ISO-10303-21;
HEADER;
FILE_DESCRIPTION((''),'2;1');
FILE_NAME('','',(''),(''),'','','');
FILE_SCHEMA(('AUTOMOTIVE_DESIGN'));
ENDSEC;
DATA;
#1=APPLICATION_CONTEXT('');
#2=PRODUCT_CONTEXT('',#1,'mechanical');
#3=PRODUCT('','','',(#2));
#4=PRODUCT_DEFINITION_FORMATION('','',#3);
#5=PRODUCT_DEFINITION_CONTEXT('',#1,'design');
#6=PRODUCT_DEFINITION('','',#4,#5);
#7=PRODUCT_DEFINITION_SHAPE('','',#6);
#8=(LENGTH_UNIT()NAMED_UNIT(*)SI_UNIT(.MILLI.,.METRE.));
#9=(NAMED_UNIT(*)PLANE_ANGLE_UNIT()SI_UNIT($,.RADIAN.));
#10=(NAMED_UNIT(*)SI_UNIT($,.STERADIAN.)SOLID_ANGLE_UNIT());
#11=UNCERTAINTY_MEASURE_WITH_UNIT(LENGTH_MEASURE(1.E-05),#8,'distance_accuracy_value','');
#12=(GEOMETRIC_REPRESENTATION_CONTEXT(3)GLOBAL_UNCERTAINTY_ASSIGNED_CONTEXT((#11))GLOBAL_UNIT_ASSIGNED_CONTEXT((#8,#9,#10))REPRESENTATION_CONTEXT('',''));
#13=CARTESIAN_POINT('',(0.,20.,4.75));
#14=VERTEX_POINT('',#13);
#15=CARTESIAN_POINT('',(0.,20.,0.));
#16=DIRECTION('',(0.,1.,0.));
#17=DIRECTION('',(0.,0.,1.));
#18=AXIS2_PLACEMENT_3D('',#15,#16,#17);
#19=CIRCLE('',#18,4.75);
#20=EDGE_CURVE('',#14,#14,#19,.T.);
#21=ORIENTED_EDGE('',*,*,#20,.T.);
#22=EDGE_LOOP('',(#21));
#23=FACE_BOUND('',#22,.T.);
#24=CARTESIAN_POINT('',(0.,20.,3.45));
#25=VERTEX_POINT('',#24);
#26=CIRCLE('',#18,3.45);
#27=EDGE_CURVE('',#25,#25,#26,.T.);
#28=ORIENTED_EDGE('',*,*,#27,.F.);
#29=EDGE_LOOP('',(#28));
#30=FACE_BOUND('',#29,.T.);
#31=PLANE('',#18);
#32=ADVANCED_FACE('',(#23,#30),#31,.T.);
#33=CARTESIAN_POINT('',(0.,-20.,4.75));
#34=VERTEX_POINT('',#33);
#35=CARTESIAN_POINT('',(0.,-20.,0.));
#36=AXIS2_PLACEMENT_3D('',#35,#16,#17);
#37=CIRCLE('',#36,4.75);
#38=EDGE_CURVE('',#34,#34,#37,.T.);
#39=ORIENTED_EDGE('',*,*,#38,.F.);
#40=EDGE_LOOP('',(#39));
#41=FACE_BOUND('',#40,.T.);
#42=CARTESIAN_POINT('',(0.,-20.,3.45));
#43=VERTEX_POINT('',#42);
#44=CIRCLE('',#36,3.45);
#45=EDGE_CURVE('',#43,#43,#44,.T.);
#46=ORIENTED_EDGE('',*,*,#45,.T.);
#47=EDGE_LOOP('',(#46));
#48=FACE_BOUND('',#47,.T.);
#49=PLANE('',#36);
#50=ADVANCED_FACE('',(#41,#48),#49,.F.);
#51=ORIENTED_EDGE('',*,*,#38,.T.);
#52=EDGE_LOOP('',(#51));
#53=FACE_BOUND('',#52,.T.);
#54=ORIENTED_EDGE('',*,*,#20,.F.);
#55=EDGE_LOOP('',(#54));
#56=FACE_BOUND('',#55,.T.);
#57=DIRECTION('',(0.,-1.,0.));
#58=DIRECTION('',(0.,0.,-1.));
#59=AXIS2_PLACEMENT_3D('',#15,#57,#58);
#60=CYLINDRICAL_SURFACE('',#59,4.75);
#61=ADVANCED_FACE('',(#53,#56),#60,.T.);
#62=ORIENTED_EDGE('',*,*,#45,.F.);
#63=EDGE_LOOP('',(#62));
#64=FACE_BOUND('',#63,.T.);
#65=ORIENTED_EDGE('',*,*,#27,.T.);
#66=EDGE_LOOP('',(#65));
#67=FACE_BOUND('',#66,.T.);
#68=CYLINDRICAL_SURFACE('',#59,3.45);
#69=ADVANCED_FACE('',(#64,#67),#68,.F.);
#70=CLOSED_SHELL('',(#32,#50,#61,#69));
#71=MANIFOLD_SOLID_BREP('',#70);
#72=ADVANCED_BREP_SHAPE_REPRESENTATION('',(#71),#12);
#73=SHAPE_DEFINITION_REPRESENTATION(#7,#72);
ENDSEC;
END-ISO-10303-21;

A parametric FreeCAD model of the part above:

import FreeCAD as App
import Part
import Sketcher

doc = App.newDocument("Part")
body = doc.addObject("PartDesign::Body", "Body")

sketch1 = body.newObject("Sketcher::SketchObject", "Sketch")
sketch1.AttachmentSupport = (doc.getObject("XZ_Plane"), [""])
sketch1.MapMode = "FlatFace"
sketch1.addGeometry([
    Part.Circle(App.Vector(0, 0, 0), App.Vector(0, 0, 1), 4.75),
    Part.Circle(App.Vector(0, 0, 0), App.Vector(0, 0, 1), 3.45),
], False)
sketch1.addConstraint([
    Sketcher.Constraint("Coincident", 0, 3, -1, 1),
    Sketcher.Constraint("Coincident", 1, 3, -1, 1),
    Sketcher.Constraint("Diameter", 0, 9.5),
    Sketcher.Constraint("Diameter", 1, 6.9),
])
pad1 = body.newObject("PartDesign::Pad", "Pad")
pad1.Profile = sketch1
pad1.Length = 40
pad1.Midplane = True

doc.recompute()
